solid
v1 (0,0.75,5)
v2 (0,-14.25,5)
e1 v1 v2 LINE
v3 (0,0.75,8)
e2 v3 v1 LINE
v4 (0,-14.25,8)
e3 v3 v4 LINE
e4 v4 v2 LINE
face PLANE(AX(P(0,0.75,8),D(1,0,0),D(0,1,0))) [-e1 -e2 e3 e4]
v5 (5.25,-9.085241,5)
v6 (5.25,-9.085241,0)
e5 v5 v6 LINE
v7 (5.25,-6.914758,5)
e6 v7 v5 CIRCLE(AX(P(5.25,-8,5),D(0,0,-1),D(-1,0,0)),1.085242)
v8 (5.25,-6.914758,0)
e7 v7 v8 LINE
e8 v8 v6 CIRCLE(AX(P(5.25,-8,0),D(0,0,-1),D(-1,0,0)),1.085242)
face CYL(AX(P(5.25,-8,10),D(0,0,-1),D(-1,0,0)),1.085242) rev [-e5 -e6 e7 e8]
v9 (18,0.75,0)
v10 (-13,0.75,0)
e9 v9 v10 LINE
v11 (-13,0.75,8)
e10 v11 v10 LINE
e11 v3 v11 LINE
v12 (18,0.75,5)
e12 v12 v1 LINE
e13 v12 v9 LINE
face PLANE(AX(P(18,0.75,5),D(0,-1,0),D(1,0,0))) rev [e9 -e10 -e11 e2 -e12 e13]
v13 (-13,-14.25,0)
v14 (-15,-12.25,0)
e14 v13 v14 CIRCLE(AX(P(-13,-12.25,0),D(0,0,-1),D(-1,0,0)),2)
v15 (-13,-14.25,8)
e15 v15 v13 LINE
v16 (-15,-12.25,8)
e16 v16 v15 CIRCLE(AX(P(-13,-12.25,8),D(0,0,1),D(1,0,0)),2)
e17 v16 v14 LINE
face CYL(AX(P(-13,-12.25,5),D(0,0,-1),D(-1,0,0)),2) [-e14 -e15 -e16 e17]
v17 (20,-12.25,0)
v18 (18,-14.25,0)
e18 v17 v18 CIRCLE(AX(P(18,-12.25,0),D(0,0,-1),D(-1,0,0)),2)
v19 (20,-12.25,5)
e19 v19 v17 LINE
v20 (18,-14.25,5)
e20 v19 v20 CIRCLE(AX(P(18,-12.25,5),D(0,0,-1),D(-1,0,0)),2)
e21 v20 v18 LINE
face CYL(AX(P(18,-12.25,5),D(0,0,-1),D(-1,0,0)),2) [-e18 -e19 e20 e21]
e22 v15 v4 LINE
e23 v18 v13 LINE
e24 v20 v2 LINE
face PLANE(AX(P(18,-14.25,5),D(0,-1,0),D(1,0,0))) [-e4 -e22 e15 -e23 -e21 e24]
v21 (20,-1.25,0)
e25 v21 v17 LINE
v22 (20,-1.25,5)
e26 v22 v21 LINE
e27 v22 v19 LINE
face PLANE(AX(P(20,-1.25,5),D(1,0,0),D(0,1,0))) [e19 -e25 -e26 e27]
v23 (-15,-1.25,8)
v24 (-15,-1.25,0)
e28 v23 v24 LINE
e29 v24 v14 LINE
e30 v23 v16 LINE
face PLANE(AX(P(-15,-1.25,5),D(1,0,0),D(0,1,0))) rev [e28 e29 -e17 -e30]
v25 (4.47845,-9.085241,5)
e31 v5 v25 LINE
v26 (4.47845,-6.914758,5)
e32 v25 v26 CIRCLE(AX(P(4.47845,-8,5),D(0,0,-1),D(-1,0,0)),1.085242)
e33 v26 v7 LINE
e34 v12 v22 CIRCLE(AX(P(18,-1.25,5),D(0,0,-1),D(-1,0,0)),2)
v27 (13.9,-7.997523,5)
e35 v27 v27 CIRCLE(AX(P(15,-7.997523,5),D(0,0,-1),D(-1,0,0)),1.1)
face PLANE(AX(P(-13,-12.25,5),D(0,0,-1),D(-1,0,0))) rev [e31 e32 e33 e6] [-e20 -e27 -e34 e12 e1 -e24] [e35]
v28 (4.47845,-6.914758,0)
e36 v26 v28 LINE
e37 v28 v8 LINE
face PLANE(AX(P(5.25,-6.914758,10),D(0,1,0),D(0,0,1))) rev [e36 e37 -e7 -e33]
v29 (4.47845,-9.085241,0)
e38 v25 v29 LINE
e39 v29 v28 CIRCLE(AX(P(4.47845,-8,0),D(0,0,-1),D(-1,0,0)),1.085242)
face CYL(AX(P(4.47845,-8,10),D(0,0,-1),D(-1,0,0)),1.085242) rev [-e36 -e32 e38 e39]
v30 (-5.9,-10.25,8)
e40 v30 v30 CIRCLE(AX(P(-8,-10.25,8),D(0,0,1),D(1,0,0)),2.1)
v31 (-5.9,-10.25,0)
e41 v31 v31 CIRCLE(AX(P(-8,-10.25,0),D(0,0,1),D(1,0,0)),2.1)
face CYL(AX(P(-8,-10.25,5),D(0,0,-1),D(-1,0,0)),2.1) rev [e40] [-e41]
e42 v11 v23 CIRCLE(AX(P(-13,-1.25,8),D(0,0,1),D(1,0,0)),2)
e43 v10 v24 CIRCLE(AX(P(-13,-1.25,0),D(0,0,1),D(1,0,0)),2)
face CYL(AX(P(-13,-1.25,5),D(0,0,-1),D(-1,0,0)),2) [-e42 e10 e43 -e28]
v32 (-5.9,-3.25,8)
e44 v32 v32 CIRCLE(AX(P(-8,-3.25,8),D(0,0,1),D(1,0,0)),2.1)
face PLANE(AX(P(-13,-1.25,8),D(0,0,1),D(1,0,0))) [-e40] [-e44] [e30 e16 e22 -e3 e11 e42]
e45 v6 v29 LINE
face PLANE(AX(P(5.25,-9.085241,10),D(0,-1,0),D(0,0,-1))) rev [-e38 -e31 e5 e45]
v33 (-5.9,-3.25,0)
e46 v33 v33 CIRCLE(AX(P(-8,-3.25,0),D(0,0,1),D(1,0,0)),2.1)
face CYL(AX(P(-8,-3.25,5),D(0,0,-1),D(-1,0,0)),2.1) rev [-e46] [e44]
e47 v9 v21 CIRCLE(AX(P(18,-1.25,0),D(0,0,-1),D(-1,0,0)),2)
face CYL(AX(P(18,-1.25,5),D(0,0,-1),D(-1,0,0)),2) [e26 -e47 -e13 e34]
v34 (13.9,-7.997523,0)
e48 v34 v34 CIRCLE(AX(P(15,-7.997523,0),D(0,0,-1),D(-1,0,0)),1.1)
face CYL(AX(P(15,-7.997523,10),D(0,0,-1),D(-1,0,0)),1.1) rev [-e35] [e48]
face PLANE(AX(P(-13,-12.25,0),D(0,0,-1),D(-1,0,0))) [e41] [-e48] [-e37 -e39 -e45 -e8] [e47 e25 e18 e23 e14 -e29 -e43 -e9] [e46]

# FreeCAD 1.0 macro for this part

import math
import FreeCAD as App
import Part
import Sketcher
Q = App.Units.Quantity

doc = App.newDocument("Part")
body = doc.addObject("PartDesign::Body", "Body")

# Sketch on XY plane
sketch1 = body.newObject("Sketcher::SketchObject", "Sketch")
sketch1.AttachmentSupport = (doc.getObject("XY_Plane"), [""])
sketch1.MapMode = "FlatFace"
sketch1.addGeometry([
    Part.LineSegment(App.Vector(18, 0.8, 0), App.Vector(-13, 0.8, 0)),  # 0
    Part.ArcOfCircle(Part.Circle(App.Vector(-13, -1.3, 0), App.Vector(0, 0, 1), 2), math.radians(90), math.radians(180)),  # 1
    Part.LineSegment(App.Vector(-15, -1.2, 0), App.Vector(-15, -12.2, 0)),  # 2
    Part.ArcOfCircle(Part.Circle(App.Vector(-13, -12.2, 0), App.Vector(0, 0, 1), 2), math.radians(-180), math.radians(-90)),  # 3
    Part.LineSegment(App.Vector(-13, -14.2, 0), App.Vector(18, -14.2, 0)),  # 4
    Part.ArcOfCircle(Part.Circle(App.Vector(18, -12.2, 0), App.Vector(0, 0, 1), 2), math.radians(-90), math.radians(0)),  # 5
    Part.LineSegment(App.Vector(20, -12.2, 0), App.Vector(20, -1.2, 0)),  # 6
    Part.ArcOfCircle(Part.Circle(App.Vector(18, -1.3, 0), App.Vector(0, 0, 1), 2), math.radians(0), math.radians(90)),  # 7
    Part.Circle(App.Vector(-8, -10.2, 0), App.Vector(0, 0, 1), 2.1),  # 8
    Part.Circle(App.Vector(-8, -3.2, 0), App.Vector(0, 0, 1), 2.1),  # 9
], False)
sketch1.addConstraint([
    Sketcher.Constraint("Tangent", 0, 2, 1, 1),
    Sketcher.Constraint("Tangent", 1, 2, 2, 1),
    Sketcher.Constraint("Tangent", 2, 2, 3, 1),
    Sketcher.Constraint("Tangent", 3, 2, 4, 1),
    Sketcher.Constraint("Tangent", 4, 2, 5, 1),
    Sketcher.Constraint("Tangent", 5, 2, 6, 1),
    Sketcher.Constraint("Tangent", 6, 2, 7, 1),
    Sketcher.Constraint("Tangent", 7, 2, 0, 1),
    Sketcher.Constraint("Horizontal", 0),
    Sketcher.Constraint("Vertical", 2),
    Sketcher.Constraint("Horizontal", 4),
    Sketcher.Constraint("Vertical", 6),
    Sketcher.Constraint("Equal", 1, 3),
    Sketcher.Constraint("Equal", 3, 5),
    Sketcher.Constraint("Equal", 5, 7),
    Sketcher.Constraint("Equal", 8, 9),
    Sketcher.Constraint("Vertical", 8, 3, 9, 3),
    Sketcher.Constraint("Radius", 1, Q("2 mm")),
    Sketcher.Constraint("Diameter", 8, Q("4.2 mm")),
    Sketcher.Constraint("DistanceX", 0, 2, 0, 1, Q("31 mm")),
    Sketcher.Constraint("DistanceY", 2, 2, 2, 1, Q("11 mm")),
    Sketcher.Constraint("DistanceX", 1, 3, -1, 1, Q("13 mm")),
    Sketcher.Constraint("DistanceX", 8, 3, -1, 1, Q("8 mm")),
    Sketcher.Constraint("DistanceY", 3, 3, 8, 3, Q("2 mm")),
    Sketcher.Constraint("DistanceY", 9, 3, 1, 3, Q("2 mm")),
    Sketcher.Constraint("DistanceY", 1, 3, -1, 1, Q("1.25 mm")),
])
pad1 = body.newObject("PartDesign::Pad", "Pad")
pad1.Profile = sketch1
pad1.Length = 5

# Sketch on XY plane
sketch2 = body.newObject("Sketcher::SketchObject", "Sketch001")
sketch2.AttachmentSupport = (doc.getObject("XY_Plane"), [""])
sketch2.MapMode = "FlatFace"
sketch2.AttachmentOffset = App.Placement(App.Vector(0, 0, 5), App.Rotation())
sketch2.addGeometry([
    Part.LineSegment(App.Vector(0, -14.2, 0), App.Vector(0, 0.8, 0)),  # 0
    Part.LineSegment(App.Vector(0, 0.8, 0), App.Vector(-13, 0.8, 0)),  # 1
    Part.ArcOfCircle(Part.Circle(App.Vector(-13, -1.3, 0), App.Vector(0, 0, 1), 2), math.radians(90), math.radians(180)),  # 2
    Part.LineSegment(App.Vector(-15, -1.2, 0), App.Vector(-15, -12.2, 0)),  # 3
    Part.ArcOfCircle(Part.Circle(App.Vector(-13, -12.2, 0), App.Vector(0, 0, 1), 2), math.radians(-180), math.radians(-90)),  # 4
    Part.LineSegment(App.Vector(-13, -14.2, 0), App.Vector(0, -14.2, 0)),  # 5
    Part.Circle(App.Vector(-8, -10.2, 0), App.Vector(0, 0, 1), 2.1),  # 6
    Part.Circle(App.Vector(-8, -3.2, 0), App.Vector(0, 0, 1), 2.1),  # 7
], False)
sketch2.addConstraint([
    Sketcher.Constraint("Coincident", 0, 2, 1, 1),
    Sketcher.Constraint("Tangent", 1, 2, 2, 1),
    Sketcher.Constraint("Tangent", 2, 2, 3, 1),
    Sketcher.Constraint("Tangent", 3, 2, 4, 1),
    Sketcher.Constraint("Tangent", 4, 2, 5, 1),
    Sketcher.Constraint("Coincident", 5, 2, 0, 1),
    Sketcher.Constraint("Vertical", 0),
    Sketcher.Constraint("Horizontal", 1),
    Sketcher.Constraint("Vertical", 3),
    Sketcher.Constraint("Horizontal", 5),
    Sketcher.Constraint("Equal", 2, 4),
    Sketcher.Constraint("Equal", 6, 7),
    Sketcher.Constraint("PointOnObject", 0, 2, -2),
    Sketcher.Constraint("Vertical", 6, 3, 7, 3),
    Sketcher.Constraint("Radius", 2, Q("2 mm")),
    Sketcher.Constraint("Diameter", 6, Q("4.2 mm")),
    Sketcher.Constraint("DistanceX", 1, 2, 1, 1, Q("13 mm")),
    Sketcher.Constraint("DistanceY", 0, 1, 0, 2, Q("15 mm")),
    Sketcher.Constraint("DistanceX", 6, 3, -1, 1, Q("8 mm")),
    Sketcher.Constraint("DistanceY", 4, 3, 6, 3, Q("2 mm")),
    Sketcher.Constraint("DistanceY", 7, 3, 2, 3, Q("2 mm")),
    Sketcher.Constraint("DistanceY", 2, 3, -1, 1, Q("1.25 mm")),
])
pad2 = body.newObject("PartDesign::Pad", "Pad001")
pad2.Profile = sketch2
pad2.Length = 3

# Sketch on XY plane
sketch3 = body.newObject("Sketcher::SketchObject", "Sketch002")
sketch3.AttachmentSupport = (doc.getObject("XY_Plane"), [""])
sketch3.MapMode = "FlatFace"
sketch3.addGeometry([
    Part.Circle(App.Vector(15, -8, 0), App.Vector(0, 0, 1), 1.1),  # 0
    Part.LineSegment(App.Vector(4.5, -6.9, 0), App.Vector(5.2, -6.9, 0)),  # 1
    Part.ArcOfCircle(Part.Circle(App.Vector(5.2, -8, 0), App.Vector(0, 0, 1), 1.1), math.radians(-90), math.radians(90)),  # 2
    Part.LineSegment(App.Vector(5.2, -9.1, 0), App.Vector(4.5, -9.1, 0)),  # 3
    Part.ArcOfCircle(Part.Circle(App.Vector(4.5, -8, 0), App.Vector(0, 0, 1), 1.1), math.radians(90), math.radians(270)),  # 4
], False)
sketch3.addConstraint([
    Sketcher.Constraint("Tangent", 1, 2, 2, 2),
    Sketcher.Constraint("Tangent", 2, 1, 3, 1),
    Sketcher.Constraint("Tangent", 3, 2, 4, 2),
    Sketcher.Constraint("Tangent", 4, 1, 1, 1),
    Sketcher.Constraint("Horizontal", 1),
    Sketcher.Constraint("Horizontal", 3),
    Sketcher.Constraint("Diameter", 0, Q("2.2 mm")),
    Sketcher.Constraint("DistanceX", -1, 1, 0, 3, Q("15 mm")),
    Sketcher.Constraint("DistanceY", 2, 3, -1, 1, Q("8 mm")),
    Sketcher.Constraint("DistanceX", -1, 1, 2, 3, Q("5.25 mm")),
    Sketcher.Constraint("Radius", 2, Q("1.085242 mm")),
    Sketcher.Constraint("DistanceX", 1, 1, 1, 2, Q("0.77155 mm")),
    Sketcher.Constraint("DistanceY", 2, 1, 0, 3, Q("1.087718 mm")),
])
pocket1 = body.newObject("PartDesign::Pocket", "Pocket")
pocket1.Profile = sketch3
pocket1.Length = 10
pocket1.Reversed = True

doc.recompute()
